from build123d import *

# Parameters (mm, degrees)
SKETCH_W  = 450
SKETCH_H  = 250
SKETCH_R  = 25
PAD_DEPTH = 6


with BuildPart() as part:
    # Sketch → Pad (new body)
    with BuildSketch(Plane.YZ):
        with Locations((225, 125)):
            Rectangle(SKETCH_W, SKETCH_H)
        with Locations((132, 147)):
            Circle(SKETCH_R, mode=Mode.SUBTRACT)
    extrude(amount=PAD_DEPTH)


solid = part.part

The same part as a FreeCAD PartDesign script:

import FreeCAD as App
import Part
import Sketcher

V = App.Vector
Q = App.Units.Quantity

doc = App.newDocument("Part")
body = doc.addObject("PartDesign::Body", "Body")

sketch1 = doc.addObject("Sketcher::SketchObject", "Sketch")
body.addObject(sketch1)
sketch1.AttachmentSupport = (doc.YZ_Plane, [""])
sketch1.MapMode = "FlatFace"
sketch1.addGeometry(Part.LineSegment(V(0, 250, 0), V(0, 0, 0)), False)
sketch1.addGeometry(Part.LineSegment(V(0, 0, 0), V(450, 0, 0)), False)
sketch1.addGeometry(Part.LineSegment(V(450, 0, 0), V(450, 250, 0)), False)
sketch1.addGeometry(Part.LineSegment(V(450, 250, 0), V(0, 250, 0)), False)
sketch1.addGeometry(Part.Circle(V(132, 147, 0), V(0, 0, 1), 25), False)
sketch1.addConstraint(Sketcher.Constraint("Coincident", 0, 2, 1, 1))
sketch1.addConstraint(Sketcher.Constraint("Coincident", 1, 2, 2, 1))
sketch1.addConstraint(Sketcher.Constraint("Coincident", 2, 2, 3, 1))
sketch1.addConstraint(Sketcher.Constraint("Coincident", 3, 2, 0, 1))
sketch1.addConstraint(Sketcher.Constraint("Vertical", 0))
sketch1.addConstraint(Sketcher.Constraint("Horizontal", 1))
sketch1.addConstraint(Sketcher.Constraint("Vertical", 2))
sketch1.addConstraint(Sketcher.Constraint("Horizontal", 3))
sketch1.addConstraint(Sketcher.Constraint("Coincident", 0, 2, -1, 1))
sketch1.addConstraint(Sketcher.Constraint("Diameter", 4, Q("50 mm")))
sketch1.addConstraint(Sketcher.Constraint("DistanceX", 1, 1, 1, 2, Q("450 mm")))
sketch1.addConstraint(Sketcher.Constraint("DistanceY", 0, 2, 0, 1, Q("250 mm")))
sketch1.addConstraint(Sketcher.Constraint("DistanceX", -1, 1, 4, 3, Q("132 mm")))
sketch1.addConstraint(Sketcher.Constraint("DistanceY", -1, 1, 4, 3, Q("147 mm")))
pad1 = doc.addObject("PartDesign::Pad", "Pad")
body.addObject(pad1)
pad1.Profile = sketch1
pad1.Length = 6

doc.recompute()
